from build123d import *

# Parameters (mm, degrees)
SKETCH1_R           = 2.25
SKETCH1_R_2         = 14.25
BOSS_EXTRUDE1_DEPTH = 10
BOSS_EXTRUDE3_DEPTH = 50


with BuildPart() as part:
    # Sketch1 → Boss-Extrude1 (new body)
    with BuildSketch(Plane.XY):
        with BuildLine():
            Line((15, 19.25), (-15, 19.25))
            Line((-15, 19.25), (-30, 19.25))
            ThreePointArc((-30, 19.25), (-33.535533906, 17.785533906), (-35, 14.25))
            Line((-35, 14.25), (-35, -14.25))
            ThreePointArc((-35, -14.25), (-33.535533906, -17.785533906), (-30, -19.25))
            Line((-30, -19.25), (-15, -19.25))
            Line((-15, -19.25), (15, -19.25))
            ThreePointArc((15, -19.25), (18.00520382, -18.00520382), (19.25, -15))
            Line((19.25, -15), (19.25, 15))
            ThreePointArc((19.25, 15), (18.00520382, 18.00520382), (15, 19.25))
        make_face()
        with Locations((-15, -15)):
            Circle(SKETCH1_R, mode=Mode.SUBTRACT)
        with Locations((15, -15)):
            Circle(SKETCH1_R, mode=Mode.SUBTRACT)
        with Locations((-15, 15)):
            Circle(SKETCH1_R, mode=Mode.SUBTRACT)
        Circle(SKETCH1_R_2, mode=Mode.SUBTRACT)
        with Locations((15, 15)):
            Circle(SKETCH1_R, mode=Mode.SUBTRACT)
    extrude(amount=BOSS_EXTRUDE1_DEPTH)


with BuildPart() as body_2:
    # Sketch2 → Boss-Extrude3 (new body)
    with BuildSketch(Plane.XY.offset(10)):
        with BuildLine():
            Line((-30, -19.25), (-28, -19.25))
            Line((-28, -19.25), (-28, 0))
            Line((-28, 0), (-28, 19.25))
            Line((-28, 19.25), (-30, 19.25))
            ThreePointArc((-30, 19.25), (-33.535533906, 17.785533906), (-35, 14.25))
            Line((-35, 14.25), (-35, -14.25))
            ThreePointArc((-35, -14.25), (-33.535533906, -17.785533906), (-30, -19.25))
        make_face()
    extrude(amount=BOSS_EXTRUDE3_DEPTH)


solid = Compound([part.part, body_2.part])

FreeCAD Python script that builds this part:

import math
import FreeCAD as App
import Part
import Sketcher
from FreeCAD import Vector
Q = App.Units.Quantity

doc = App.newDocument("Part")
body = doc.addObject("PartDesign::Body", "Body")

# Sketch on XY plane
sketch1 = doc.addObject("Sketcher::SketchObject", "Sketch")
body.addObject(sketch1)
sketch1.AttachmentSupport = (doc.XY_Plane, [""])
sketch1.MapMode = "FlatFace"
sketch1.addGeometry([
    Part.LineSegment(Vector(15, 19.2, 0), Vector(-30, 19.2, 0)),  # 0
    Part.ArcOfCircle(Part.Circle(Vector(-30, 14.2, 0), Vector(0, 0, 1), 5), math.radians(90), math.radians(180)),  # 1
    Part.LineSegment(Vector(-35, 14.2, 0), Vector(-35, -14.2, 0)),  # 2
    Part.ArcOfCircle(Part.Circle(Vector(-30, -14.2, 0), Vector(0, 0, 1), 5), math.radians(180), math.radians(270)),  # 3
    Part.LineSegment(Vector(-30, -19.2, 0), Vector(15, -19.2, 0)),  # 4
    Part.ArcOfCircle(Part.Circle(Vector(15, -15, 0), Vector(0, 0, 1), 4.2), math.radians(-90), math.radians(0)),  # 5
    Part.LineSegment(Vector(19.2, -15, 0), Vector(19.2, 15, 0)),  # 6
    Part.ArcOfCircle(Part.Circle(Vector(15, 15, 0), Vector(0, 0, 1), 4.2), math.radians(0), math.radians(90)),  # 7
    Part.Circle(Vector(-15, -15, 0), Vector(0, 0, 1), 2.2),  # 8
    Part.Circle(Vector(15, -15, 0), Vector(0, 0, 1), 2.2),  # 9
    Part.Circle(Vector(-15, 15, 0), Vector(0, 0, 1), 2.2),  # 10
    Part.Circle(Vector(0, 0, 0), Vector(0, 0, 1), 14.2),  # 11
    Part.Circle(Vector(15, 15, 0), Vector(0, 0, 1), 2.2),  # 12
], False)
sketch1.addConstraint([
    Sketcher.Constraint("Tangent", 0, 2, 1, 1),
    Sketcher.Constraint("Tangent", 1, 2, 2, 1),
    Sketcher.Constraint("Tangent", 2, 2, 3, 1),
    Sketcher.Constraint("Tangent", 3, 2, 4, 1),
    Sketcher.Constraint("Tangent", 4, 2, 5, 1),
    Sketcher.Constraint("Tangent", 5, 2, 6, 1),
    Sketcher.Constraint("Tangent", 6, 2, 7, 1),
    Sketcher.Constraint("Tangent", 7, 2, 0, 1),
    Sketcher.Constraint("Horizontal", 0),
    Sketcher.Constraint("Vertical", 2),
    Sketcher.Constraint("Horizontal", 4),
    Sketcher.Constraint("Vertical", 6),
    Sketcher.Constraint("Coincident", 11, 3, -1, 1),
    Sketcher.Constraint("Coincident", 9, 3, 5, 3),
    Sketcher.Constraint("Coincident", 12, 3, 7, 3),
    Sketcher.Constraint("Equal", 1, 3),
    Sketcher.Constraint("Equal", 5, 7),
    Sketcher.Constraint("Equal", 8, 9),
    Sketcher.Constraint("Equal", 9, 10),
    Sketcher.Constraint("Equal", 10, 12),
    Sketcher.Constraint("Symmetric", 7, 3, 8, 3, -1, 1),
    Sketcher.Constraint("Symmetric", 5, 3, 10, 3, -1, 1),
    Sketcher.Constraint("Horizontal", 5, 3, 8, 3),
    Sketcher.Constraint("Radius", 1, Q("5 mm")),
    Sketcher.Constraint("Diameter", 8, Q("4.5 mm")),
    Sketcher.Constraint("Diameter", 11, Q("28.5 mm")),
    Sketcher.Constraint("DistanceX", 0, 2, 0, 1, Q("45 mm")),
    Sketcher.Constraint("DistanceY", 6, 1, 6, 2, Q("30 mm")),
    Sketcher.Constraint("Radius", 5, Q("4.25 mm")),
    Sketcher.Constraint("DistanceX", 1, 3, -1, 1, Q("30 mm")),
])
pad1 = doc.addObject("PartDesign::Pad", "Pad")
body.addObject(pad1)
pad1.Profile = sketch1
pad1.Length = 10
body2 = doc.addObject("PartDesign::Body", "Body001")

# Sketch on XY plane
sketch2 = doc.addObject("Sketcher::SketchObject", "Sketch001")
body2.addObject(sketch2)
sketch2.AttachmentSupport = (doc.getObject("XY_Plane001"), [""])
sketch2.MapMode = "FlatFace"
sketch2.AttachmentOffset = App.Placement(Vector(0, 0, 10), App.Rotation())
sketch2.addGeometry([
    Part.LineSegment(Vector(-30, -19.2, 0), Vector(-28, -19.2, 0)),  # 0
    Part.LineSegment(Vector(-28, -19.2, 0), Vector(-28, 19.2, 0)),  # 1
    Part.LineSegment(Vector(-28, 19.2, 0), Vector(-30, 19.2, 0)),  # 2
    Part.ArcOfCircle(Part.Circle(Vector(-30, 14.2, 0), Vector(0, 0, 1), 5), math.radians(90), math.radians(180)),  # 3
    Part.LineSegment(Vector(-35, 14.2, 0), Vector(-35, -14.2, 0)),  # 4
    Part.ArcOfCircle(Part.Circle(Vector(-30, -14.2, 0), Vector(0, 0, 1), 5), math.radians(180), math.radians(270)),  # 5
], False)
sketch2.addConstraint([
    Sketcher.Constraint("Coincident", 0, 2, 1, 1),
    Sketcher.Constraint("Coincident", 1, 2, 2, 1),
    Sketcher.Constraint("Tangent", 2, 2, 3, 1),
    Sketcher.Constraint("Tangent", 3, 2, 4, 1),
    Sketcher.Constraint("Tangent", 4, 2, 5, 1),
    Sketcher.Constraint("Tangent", 5, 2, 0, 1),
    Sketcher.Constraint("Horizontal", 0),
    Sketcher.Constraint("Vertical", 1),
    Sketcher.Constraint("Horizontal", 2),
    Sketcher.Constraint("Vertical", 4),
    Sketcher.Constraint("Equal", 3, 5),
    Sketcher.Constraint("Radius", 3, Q("5 mm")),
    Sketcher.Constraint("DistanceX", 0, 1, 0, 2, Q("2 mm")),
    Sketcher.Constraint("DistanceY", 1, 1, 1, 2, Q("38.5 mm")),
    Sketcher.Constraint("DistanceX", 3, 3, -1, 1, Q("30 mm")),
    Sketcher.Constraint("DistanceY", -1, 1, 3, 3, Q("14.25 mm")),
])
pad2 = doc.addObject("PartDesign::Pad", "Pad001")
body2.addObject(pad2)
pad2.Profile = sketch2
pad2.Length = 50

doc.recompute()
